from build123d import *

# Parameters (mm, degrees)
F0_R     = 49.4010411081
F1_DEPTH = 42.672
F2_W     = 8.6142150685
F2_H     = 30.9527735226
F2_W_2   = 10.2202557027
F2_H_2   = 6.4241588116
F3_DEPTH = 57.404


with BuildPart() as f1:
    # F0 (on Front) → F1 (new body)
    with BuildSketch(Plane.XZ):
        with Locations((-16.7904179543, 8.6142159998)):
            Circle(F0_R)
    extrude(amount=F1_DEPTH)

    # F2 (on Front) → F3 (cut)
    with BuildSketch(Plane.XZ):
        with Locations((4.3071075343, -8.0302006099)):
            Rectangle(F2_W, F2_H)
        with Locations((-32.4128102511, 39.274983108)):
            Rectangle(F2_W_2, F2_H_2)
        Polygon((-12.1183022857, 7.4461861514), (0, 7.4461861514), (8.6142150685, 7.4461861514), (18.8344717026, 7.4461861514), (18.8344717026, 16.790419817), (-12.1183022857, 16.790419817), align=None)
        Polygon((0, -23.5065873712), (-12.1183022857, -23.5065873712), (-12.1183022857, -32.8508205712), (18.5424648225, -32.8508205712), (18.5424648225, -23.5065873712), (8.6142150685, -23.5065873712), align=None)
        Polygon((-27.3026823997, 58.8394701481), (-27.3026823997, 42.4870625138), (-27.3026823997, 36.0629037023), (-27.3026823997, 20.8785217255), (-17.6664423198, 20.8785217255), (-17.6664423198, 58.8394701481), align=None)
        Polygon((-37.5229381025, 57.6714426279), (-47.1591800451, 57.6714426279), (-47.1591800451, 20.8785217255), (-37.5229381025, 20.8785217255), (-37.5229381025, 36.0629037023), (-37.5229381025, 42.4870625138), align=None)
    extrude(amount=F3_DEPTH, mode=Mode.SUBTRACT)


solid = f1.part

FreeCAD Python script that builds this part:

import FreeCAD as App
import Part
import Sketcher
Q = App.Units.Quantity

doc = App.newDocument("Part")
body = doc.addObject("PartDesign::Body", "Body")
body.AllowCompound = True

sketch1 = doc.addObject("Sketcher::SketchObject", "Sketch")
body.addObject(sketch1)
sketch1.AttachmentSupport = (doc.XZ_Plane, [""])
sketch1.MapMode = "FlatFace"
sketch1.addGeometry(Part.Circle(App.Vector(-16.790418, 8.614216, 0), App.Vector(0, 0, 1), 49.401041), False)
sketch1.addConstraint(Sketcher.Constraint("Diameter", 0, 98.802082))
sketch1.addConstraint(Sketcher.Constraint("DistanceX", 0, 3, -1, 1, 16.790418))
sketch1.addConstraint(Sketcher.Constraint("DistanceY", -1, 1, 0, 3, 8.614216))
pad1 = doc.addObject("PartDesign::Pad", "Pad")
body.addObject(pad1)
pad1.Profile = sketch1
pad1.Length = Q("1.68 in")

sketch2 = doc.addObject("Sketcher::SketchObject", "Sketch001")
body.addObject(sketch2)
sketch2.AttachmentSupport = (doc.XZ_Plane, [""])
sketch2.MapMode = "FlatFace"
sketch2.addGeometry(Part.LineSegment(App.Vector(0, 7.446186, 0), App.Vector(0, -23.506587, 0)), False)
sketch2.addGeometry(Part.LineSegment(App.Vector(0, -23.506587, 0), App.Vector(-12.118302, -23.506587, 0)), False)
sketch2.addGeometry(Part.LineSegment(App.Vector(-12.118302, -23.506587, 0), App.Vector(-12.118302, -32.850821, 0)), False)
sketch2.addGeometry(Part.LineSegment(App.Vector(-12.118302, -32.850821, 0), App.Vector(18.542465, -32.850821, 0)), False)
sketch2.addGeometry(Part.LineSegment(App.Vector(18.542465, -32.850821, 0), App.Vector(18.542465, -23.506587, 0)), False)
sketch2.addGeometry(Part.LineSegment(App.Vector(18.542465, -23.506587, 0), App.Vector(8.614215, -23.506587, 0)), False)
sketch2.addGeometry(Part.LineSegment(App.Vector(8.614215, -23.506587, 0), App.Vector(8.614215, 7.446186, 0)), False)
sketch2.addGeometry(Part.LineSegment(App.Vector(8.614215, 7.446186, 0), App.Vector(18.834472, 7.446186, 0)), False)
sketch2.addGeometry(Part.LineSegment(App.Vector(18.834472, 7.446186, 0), App.Vector(18.834472, 16.79042, 0)), False)
sketch2.addGeometry(Part.LineSegment(App.Vector(18.834472, 16.79042, 0), App.Vector(-12.118302, 16.79042, 0)), False)
sketch2.addGeometry(Part.LineSegment(App.Vector(-12.118302, 16.79042, 0), App.Vector(-12.118302, 7.446186, 0)), False)
sketch2.addGeometry(Part.LineSegment(App.Vector(-12.118302, 7.446186, 0), App.Vector(0, 7.446186, 0)), False)
sketch2.addGeometry(Part.LineSegment(App.Vector(-37.522938, 36.062904, 0), App.Vector(-27.302682, 36.062904, 0)), False)
sketch2.addGeometry(Part.LineSegment(App.Vector(-27.302682, 36.062904, 0), App.Vector(-27.302682, 20.878522, 0)), False)
sketch2.addGeometry(Part.LineSegment(App.Vector(-27.302682, 20.878522, 0), App.Vector(-17.666442, 20.878522, 0)), False)
sketch2.addGeometry(Part.LineSegment(App.Vector(-17.666442, 20.878522, 0), App.Vector(-17.666442, 58.83947, 0)), False)
sketch2.addGeometry(Part.LineSegment(App.Vector(-17.666442, 58.83947, 0), App.Vector(-27.302682, 58.83947, 0)), False)
sketch2.addGeometry(Part.LineSegment(App.Vector(-27.302682, 58.83947, 0), App.Vector(-27.302682, 42.487063, 0)), False)
sketch2.addGeometry(Part.LineSegment(App.Vector(-27.302682, 42.487063, 0), App.Vector(-37.522938, 42.487063, 0)), False)
sketch2.addGeometry(Part.LineSegment(App.Vector(-37.522938, 42.487063, 0), App.Vector(-37.522938, 57.671443, 0)), False)
sketch2.addGeometry(Part.LineSegment(App.Vector(-37.522938, 57.671443, 0), App.Vector(-47.15918, 57.671443, 0)), False)
sketch2.addGeometry(Part.LineSegment(App.Vector(-47.15918, 57.671443, 0), App.Vector(-47.15918, 20.878522, 0)), False)
sketch2.addGeometry(Part.LineSegment(App.Vector(-47.15918, 20.878522, 0), App.Vector(-37.522938, 20.878522, 0)), False)
sketch2.addGeometry(Part.LineSegment(App.Vector(-37.522938, 20.878522, 0), App.Vector(-37.522938, 36.062904, 0)), False)
sketch2.addConstraint(Sketcher.Constraint("Coincident", 0, 2, 1, 1))
sketch2.addConstraint(Sketcher.Constraint("Coincident", 1, 2, 2, 1))
sketch2.addConstraint(Sketcher.Constraint("Coincident", 2, 2, 3, 1))
sketch2.addConstraint(Sketcher.Constraint("Coincident", 3, 2, 4, 1))
sketch2.addConstraint(Sketcher.Constraint("Coincident", 4, 2, 5, 1))
sketch2.addConstraint(Sketcher.Constraint("Coincident", 5, 2, 6, 1))
sketch2.addConstraint(Sketcher.Constraint("Coincident", 6, 2, 7, 1))
sketch2.addConstraint(Sketcher.Constraint("Coincident", 7, 2, 8, 1))
sketch2.addConstraint(Sketcher.Constraint("Coincident", 8, 2, 9, 1))
sketch2.addConstraint(Sketcher.Constraint("Coincident", 9, 2, 10, 1))
sketch2.addConstraint(Sketcher.Constraint("Coincident", 10, 2, 11, 1))
sketch2.addConstraint(Sketcher.Constraint("Coincident", 11, 2, 0, 1))
sketch2.addConstraint(Sketcher.Constraint("Coincident", 12, 2, 13, 1))
sketch2.addConstraint(Sketcher.Constraint("Coincident", 13, 2, 14, 1))
sketch2.addConstraint(Sketcher.Constraint("Coincident", 14, 2, 15, 1))
sketch2.addConstraint(Sketcher.Constraint("Coincident", 15, 2, 16, 1))
sketch2.addConstraint(Sketcher.Constraint("Coincident", 16, 2, 17, 1))
sketch2.addConstraint(Sketcher.Constraint("Coincident", 17, 2, 18, 1))
sketch2.addConstraint(Sketcher.Constraint("Coincident", 18, 2, 19, 1))
sketch2.addConstraint(Sketcher.Constraint("Coincident", 19, 2, 20, 1))
sketch2.addConstraint(Sketcher.Constraint("Coincident", 20, 2, 21, 1))
sketch2.addConstraint(Sketcher.Constraint("Coincident", 21, 2, 22, 1))
sketch2.addConstraint(Sketcher.Constraint("Coincident", 22, 2, 23, 1))
sketch2.addConstraint(Sketcher.Constraint("Coincident", 23, 2, 12, 1))
sketch2.addConstraint(Sketcher.Constraint("Vertical", 0))
sketch2.addConstraint(Sketcher.Constraint("Horizontal", 1))
sketch2.addConstraint(Sketcher.Constraint("Vertical", 2))
sketch2.addConstraint(Sketcher.Constraint("Horizontal", 3))
sketch2.addConstraint(Sketcher.Constraint("Vertical", 4))
sketch2.addConstraint(Sketcher.Constraint("Horizontal", 5))
sketch2.addConstraint(Sketcher.Constraint("Vertical", 6))
sketch2.addConstraint(Sketcher.Constraint("Horizontal", 7))
sketch2.addConstraint(Sketcher.Constraint("Vertical", 8))
sketch2.addConstraint(Sketcher.Constraint("Horizontal", 9))
sketch2.addConstraint(Sketcher.Constraint("Vertical", 10))
sketch2.addConstraint(Sketcher.Constraint("Horizontal", 11))
sketch2.addConstraint(Sketcher.Constraint("Horizontal", 12))
sketch2.addConstraint(Sketcher.Constraint("Vertical", 13))
sketch2.addConstraint(Sketcher.Constraint("Horizontal", 14))
sketch2.addConstraint(Sketcher.Constraint("Vertical", 15))
sketch2.addConstraint(Sketcher.Constraint("Horizontal", 16))
sketch2.addConstraint(Sketcher.Constraint("Vertical", 17))
sketch2.addConstraint(Sketcher.Constraint("Horizontal", 18))
sketch2.addConstraint(Sketcher.Constraint("Vertical", 19))
sketch2.addConstraint(Sketcher.Constraint("Horizontal", 20))
sketch2.addConstraint(Sketcher.Constraint("Vertical", 21))
sketch2.addConstraint(Sketcher.Constraint("Horizontal", 22))
sketch2.addConstraint(Sketcher.Constraint("Vertical", 23))
sketch2.addConstraint(Sketcher.Constraint("PointOnObject", 0, 2, -2))
sketch2.addConstraint(Sketcher.Constraint("Horizontal", 1, 2, 4, 2))
sketch2.addConstraint(Sketcher.Constraint("Horizontal", 7, 2, 10, 2))
sketch2.addConstraint(Sketcher.Constraint("Horizontal", 14, 2, 21, 2))
sketch2.addConstraint(Sketcher.Constraint("Vertical", 2, 2, 9, 2))
sketch2.addConstraint(Sketcher.Constraint("Vertical", 13, 2, 16, 2))
sketch2.addConstraint(Sketcher.Constraint("Vertical", 19, 2, 22, 2))
sketch2.addConstraint(Sketcher.Constraint("Equal", 7, 12))
sketch2.addConstraint(Sketcher.Constraint("Equal", 16, 20))
sketch2.addConstraint(Sketcher.Constraint("Equal", 9, 0))
sketch2.addConstraint(Sketcher.Constraint("Equal", 4, 8))
sketch2.addConstraint(Sketcher.Constraint("Equal", 13, 19))
sketch2.addConstraint(Sketcher.Constraint("DistanceX", 5, 2, 5, 1, 9.92825))
sketch2.addConstraint(Sketcher.Constraint("DistanceX", 14, 1, 14, 2, 9.63624))
sketch2.addConstraint(Sketcher.Constraint("DistanceY", 13, 2, 13, 1, 15.184382))
sketch2.addConstraint(Sketcher.Constraint("DistanceY", 15, 1, 15, 2, 37.960948))
sketch2.addConstraint(Sketcher.Constraint("DistanceY", 21, 2, 21, 1, 36.792921))
sketch2.addConstraint(Sketcher.Constraint("DistanceY", 9, 2, 13, 2, 4.088102))
sketch2.addConstraint(Sketcher.Constraint("DistanceX", 1, 2, 1, 1, 12.118302))
sketch2.addConstraint(Sketcher.Constraint("DistanceX", 3, 1, 3, 2, 30.660767))
sketch2.addConstraint(Sketcher.Constraint("DistanceX", 7, 1, 7, 2, 10.220257))
sketch2.addConstraint(Sketcher.Constraint("DistanceY", 2, 2, 2, 1, 9.344233))
sketch2.addConstraint(Sketcher.Constraint("DistanceY", 2, 2, -1, 1, 32.850821))
sketch2.addConstraint(Sketcher.Constraint("DistanceX", 18, 2, -1, 1, 37.522938))
pocket1 = doc.addObject("PartDesign::Pocket", "Pocket")
body.addObject(pocket1)
pocket1.Profile = sketch2
pocket1.Length = Q("2.26 in")
pocket1.Reversed = True

doc.recompute()
